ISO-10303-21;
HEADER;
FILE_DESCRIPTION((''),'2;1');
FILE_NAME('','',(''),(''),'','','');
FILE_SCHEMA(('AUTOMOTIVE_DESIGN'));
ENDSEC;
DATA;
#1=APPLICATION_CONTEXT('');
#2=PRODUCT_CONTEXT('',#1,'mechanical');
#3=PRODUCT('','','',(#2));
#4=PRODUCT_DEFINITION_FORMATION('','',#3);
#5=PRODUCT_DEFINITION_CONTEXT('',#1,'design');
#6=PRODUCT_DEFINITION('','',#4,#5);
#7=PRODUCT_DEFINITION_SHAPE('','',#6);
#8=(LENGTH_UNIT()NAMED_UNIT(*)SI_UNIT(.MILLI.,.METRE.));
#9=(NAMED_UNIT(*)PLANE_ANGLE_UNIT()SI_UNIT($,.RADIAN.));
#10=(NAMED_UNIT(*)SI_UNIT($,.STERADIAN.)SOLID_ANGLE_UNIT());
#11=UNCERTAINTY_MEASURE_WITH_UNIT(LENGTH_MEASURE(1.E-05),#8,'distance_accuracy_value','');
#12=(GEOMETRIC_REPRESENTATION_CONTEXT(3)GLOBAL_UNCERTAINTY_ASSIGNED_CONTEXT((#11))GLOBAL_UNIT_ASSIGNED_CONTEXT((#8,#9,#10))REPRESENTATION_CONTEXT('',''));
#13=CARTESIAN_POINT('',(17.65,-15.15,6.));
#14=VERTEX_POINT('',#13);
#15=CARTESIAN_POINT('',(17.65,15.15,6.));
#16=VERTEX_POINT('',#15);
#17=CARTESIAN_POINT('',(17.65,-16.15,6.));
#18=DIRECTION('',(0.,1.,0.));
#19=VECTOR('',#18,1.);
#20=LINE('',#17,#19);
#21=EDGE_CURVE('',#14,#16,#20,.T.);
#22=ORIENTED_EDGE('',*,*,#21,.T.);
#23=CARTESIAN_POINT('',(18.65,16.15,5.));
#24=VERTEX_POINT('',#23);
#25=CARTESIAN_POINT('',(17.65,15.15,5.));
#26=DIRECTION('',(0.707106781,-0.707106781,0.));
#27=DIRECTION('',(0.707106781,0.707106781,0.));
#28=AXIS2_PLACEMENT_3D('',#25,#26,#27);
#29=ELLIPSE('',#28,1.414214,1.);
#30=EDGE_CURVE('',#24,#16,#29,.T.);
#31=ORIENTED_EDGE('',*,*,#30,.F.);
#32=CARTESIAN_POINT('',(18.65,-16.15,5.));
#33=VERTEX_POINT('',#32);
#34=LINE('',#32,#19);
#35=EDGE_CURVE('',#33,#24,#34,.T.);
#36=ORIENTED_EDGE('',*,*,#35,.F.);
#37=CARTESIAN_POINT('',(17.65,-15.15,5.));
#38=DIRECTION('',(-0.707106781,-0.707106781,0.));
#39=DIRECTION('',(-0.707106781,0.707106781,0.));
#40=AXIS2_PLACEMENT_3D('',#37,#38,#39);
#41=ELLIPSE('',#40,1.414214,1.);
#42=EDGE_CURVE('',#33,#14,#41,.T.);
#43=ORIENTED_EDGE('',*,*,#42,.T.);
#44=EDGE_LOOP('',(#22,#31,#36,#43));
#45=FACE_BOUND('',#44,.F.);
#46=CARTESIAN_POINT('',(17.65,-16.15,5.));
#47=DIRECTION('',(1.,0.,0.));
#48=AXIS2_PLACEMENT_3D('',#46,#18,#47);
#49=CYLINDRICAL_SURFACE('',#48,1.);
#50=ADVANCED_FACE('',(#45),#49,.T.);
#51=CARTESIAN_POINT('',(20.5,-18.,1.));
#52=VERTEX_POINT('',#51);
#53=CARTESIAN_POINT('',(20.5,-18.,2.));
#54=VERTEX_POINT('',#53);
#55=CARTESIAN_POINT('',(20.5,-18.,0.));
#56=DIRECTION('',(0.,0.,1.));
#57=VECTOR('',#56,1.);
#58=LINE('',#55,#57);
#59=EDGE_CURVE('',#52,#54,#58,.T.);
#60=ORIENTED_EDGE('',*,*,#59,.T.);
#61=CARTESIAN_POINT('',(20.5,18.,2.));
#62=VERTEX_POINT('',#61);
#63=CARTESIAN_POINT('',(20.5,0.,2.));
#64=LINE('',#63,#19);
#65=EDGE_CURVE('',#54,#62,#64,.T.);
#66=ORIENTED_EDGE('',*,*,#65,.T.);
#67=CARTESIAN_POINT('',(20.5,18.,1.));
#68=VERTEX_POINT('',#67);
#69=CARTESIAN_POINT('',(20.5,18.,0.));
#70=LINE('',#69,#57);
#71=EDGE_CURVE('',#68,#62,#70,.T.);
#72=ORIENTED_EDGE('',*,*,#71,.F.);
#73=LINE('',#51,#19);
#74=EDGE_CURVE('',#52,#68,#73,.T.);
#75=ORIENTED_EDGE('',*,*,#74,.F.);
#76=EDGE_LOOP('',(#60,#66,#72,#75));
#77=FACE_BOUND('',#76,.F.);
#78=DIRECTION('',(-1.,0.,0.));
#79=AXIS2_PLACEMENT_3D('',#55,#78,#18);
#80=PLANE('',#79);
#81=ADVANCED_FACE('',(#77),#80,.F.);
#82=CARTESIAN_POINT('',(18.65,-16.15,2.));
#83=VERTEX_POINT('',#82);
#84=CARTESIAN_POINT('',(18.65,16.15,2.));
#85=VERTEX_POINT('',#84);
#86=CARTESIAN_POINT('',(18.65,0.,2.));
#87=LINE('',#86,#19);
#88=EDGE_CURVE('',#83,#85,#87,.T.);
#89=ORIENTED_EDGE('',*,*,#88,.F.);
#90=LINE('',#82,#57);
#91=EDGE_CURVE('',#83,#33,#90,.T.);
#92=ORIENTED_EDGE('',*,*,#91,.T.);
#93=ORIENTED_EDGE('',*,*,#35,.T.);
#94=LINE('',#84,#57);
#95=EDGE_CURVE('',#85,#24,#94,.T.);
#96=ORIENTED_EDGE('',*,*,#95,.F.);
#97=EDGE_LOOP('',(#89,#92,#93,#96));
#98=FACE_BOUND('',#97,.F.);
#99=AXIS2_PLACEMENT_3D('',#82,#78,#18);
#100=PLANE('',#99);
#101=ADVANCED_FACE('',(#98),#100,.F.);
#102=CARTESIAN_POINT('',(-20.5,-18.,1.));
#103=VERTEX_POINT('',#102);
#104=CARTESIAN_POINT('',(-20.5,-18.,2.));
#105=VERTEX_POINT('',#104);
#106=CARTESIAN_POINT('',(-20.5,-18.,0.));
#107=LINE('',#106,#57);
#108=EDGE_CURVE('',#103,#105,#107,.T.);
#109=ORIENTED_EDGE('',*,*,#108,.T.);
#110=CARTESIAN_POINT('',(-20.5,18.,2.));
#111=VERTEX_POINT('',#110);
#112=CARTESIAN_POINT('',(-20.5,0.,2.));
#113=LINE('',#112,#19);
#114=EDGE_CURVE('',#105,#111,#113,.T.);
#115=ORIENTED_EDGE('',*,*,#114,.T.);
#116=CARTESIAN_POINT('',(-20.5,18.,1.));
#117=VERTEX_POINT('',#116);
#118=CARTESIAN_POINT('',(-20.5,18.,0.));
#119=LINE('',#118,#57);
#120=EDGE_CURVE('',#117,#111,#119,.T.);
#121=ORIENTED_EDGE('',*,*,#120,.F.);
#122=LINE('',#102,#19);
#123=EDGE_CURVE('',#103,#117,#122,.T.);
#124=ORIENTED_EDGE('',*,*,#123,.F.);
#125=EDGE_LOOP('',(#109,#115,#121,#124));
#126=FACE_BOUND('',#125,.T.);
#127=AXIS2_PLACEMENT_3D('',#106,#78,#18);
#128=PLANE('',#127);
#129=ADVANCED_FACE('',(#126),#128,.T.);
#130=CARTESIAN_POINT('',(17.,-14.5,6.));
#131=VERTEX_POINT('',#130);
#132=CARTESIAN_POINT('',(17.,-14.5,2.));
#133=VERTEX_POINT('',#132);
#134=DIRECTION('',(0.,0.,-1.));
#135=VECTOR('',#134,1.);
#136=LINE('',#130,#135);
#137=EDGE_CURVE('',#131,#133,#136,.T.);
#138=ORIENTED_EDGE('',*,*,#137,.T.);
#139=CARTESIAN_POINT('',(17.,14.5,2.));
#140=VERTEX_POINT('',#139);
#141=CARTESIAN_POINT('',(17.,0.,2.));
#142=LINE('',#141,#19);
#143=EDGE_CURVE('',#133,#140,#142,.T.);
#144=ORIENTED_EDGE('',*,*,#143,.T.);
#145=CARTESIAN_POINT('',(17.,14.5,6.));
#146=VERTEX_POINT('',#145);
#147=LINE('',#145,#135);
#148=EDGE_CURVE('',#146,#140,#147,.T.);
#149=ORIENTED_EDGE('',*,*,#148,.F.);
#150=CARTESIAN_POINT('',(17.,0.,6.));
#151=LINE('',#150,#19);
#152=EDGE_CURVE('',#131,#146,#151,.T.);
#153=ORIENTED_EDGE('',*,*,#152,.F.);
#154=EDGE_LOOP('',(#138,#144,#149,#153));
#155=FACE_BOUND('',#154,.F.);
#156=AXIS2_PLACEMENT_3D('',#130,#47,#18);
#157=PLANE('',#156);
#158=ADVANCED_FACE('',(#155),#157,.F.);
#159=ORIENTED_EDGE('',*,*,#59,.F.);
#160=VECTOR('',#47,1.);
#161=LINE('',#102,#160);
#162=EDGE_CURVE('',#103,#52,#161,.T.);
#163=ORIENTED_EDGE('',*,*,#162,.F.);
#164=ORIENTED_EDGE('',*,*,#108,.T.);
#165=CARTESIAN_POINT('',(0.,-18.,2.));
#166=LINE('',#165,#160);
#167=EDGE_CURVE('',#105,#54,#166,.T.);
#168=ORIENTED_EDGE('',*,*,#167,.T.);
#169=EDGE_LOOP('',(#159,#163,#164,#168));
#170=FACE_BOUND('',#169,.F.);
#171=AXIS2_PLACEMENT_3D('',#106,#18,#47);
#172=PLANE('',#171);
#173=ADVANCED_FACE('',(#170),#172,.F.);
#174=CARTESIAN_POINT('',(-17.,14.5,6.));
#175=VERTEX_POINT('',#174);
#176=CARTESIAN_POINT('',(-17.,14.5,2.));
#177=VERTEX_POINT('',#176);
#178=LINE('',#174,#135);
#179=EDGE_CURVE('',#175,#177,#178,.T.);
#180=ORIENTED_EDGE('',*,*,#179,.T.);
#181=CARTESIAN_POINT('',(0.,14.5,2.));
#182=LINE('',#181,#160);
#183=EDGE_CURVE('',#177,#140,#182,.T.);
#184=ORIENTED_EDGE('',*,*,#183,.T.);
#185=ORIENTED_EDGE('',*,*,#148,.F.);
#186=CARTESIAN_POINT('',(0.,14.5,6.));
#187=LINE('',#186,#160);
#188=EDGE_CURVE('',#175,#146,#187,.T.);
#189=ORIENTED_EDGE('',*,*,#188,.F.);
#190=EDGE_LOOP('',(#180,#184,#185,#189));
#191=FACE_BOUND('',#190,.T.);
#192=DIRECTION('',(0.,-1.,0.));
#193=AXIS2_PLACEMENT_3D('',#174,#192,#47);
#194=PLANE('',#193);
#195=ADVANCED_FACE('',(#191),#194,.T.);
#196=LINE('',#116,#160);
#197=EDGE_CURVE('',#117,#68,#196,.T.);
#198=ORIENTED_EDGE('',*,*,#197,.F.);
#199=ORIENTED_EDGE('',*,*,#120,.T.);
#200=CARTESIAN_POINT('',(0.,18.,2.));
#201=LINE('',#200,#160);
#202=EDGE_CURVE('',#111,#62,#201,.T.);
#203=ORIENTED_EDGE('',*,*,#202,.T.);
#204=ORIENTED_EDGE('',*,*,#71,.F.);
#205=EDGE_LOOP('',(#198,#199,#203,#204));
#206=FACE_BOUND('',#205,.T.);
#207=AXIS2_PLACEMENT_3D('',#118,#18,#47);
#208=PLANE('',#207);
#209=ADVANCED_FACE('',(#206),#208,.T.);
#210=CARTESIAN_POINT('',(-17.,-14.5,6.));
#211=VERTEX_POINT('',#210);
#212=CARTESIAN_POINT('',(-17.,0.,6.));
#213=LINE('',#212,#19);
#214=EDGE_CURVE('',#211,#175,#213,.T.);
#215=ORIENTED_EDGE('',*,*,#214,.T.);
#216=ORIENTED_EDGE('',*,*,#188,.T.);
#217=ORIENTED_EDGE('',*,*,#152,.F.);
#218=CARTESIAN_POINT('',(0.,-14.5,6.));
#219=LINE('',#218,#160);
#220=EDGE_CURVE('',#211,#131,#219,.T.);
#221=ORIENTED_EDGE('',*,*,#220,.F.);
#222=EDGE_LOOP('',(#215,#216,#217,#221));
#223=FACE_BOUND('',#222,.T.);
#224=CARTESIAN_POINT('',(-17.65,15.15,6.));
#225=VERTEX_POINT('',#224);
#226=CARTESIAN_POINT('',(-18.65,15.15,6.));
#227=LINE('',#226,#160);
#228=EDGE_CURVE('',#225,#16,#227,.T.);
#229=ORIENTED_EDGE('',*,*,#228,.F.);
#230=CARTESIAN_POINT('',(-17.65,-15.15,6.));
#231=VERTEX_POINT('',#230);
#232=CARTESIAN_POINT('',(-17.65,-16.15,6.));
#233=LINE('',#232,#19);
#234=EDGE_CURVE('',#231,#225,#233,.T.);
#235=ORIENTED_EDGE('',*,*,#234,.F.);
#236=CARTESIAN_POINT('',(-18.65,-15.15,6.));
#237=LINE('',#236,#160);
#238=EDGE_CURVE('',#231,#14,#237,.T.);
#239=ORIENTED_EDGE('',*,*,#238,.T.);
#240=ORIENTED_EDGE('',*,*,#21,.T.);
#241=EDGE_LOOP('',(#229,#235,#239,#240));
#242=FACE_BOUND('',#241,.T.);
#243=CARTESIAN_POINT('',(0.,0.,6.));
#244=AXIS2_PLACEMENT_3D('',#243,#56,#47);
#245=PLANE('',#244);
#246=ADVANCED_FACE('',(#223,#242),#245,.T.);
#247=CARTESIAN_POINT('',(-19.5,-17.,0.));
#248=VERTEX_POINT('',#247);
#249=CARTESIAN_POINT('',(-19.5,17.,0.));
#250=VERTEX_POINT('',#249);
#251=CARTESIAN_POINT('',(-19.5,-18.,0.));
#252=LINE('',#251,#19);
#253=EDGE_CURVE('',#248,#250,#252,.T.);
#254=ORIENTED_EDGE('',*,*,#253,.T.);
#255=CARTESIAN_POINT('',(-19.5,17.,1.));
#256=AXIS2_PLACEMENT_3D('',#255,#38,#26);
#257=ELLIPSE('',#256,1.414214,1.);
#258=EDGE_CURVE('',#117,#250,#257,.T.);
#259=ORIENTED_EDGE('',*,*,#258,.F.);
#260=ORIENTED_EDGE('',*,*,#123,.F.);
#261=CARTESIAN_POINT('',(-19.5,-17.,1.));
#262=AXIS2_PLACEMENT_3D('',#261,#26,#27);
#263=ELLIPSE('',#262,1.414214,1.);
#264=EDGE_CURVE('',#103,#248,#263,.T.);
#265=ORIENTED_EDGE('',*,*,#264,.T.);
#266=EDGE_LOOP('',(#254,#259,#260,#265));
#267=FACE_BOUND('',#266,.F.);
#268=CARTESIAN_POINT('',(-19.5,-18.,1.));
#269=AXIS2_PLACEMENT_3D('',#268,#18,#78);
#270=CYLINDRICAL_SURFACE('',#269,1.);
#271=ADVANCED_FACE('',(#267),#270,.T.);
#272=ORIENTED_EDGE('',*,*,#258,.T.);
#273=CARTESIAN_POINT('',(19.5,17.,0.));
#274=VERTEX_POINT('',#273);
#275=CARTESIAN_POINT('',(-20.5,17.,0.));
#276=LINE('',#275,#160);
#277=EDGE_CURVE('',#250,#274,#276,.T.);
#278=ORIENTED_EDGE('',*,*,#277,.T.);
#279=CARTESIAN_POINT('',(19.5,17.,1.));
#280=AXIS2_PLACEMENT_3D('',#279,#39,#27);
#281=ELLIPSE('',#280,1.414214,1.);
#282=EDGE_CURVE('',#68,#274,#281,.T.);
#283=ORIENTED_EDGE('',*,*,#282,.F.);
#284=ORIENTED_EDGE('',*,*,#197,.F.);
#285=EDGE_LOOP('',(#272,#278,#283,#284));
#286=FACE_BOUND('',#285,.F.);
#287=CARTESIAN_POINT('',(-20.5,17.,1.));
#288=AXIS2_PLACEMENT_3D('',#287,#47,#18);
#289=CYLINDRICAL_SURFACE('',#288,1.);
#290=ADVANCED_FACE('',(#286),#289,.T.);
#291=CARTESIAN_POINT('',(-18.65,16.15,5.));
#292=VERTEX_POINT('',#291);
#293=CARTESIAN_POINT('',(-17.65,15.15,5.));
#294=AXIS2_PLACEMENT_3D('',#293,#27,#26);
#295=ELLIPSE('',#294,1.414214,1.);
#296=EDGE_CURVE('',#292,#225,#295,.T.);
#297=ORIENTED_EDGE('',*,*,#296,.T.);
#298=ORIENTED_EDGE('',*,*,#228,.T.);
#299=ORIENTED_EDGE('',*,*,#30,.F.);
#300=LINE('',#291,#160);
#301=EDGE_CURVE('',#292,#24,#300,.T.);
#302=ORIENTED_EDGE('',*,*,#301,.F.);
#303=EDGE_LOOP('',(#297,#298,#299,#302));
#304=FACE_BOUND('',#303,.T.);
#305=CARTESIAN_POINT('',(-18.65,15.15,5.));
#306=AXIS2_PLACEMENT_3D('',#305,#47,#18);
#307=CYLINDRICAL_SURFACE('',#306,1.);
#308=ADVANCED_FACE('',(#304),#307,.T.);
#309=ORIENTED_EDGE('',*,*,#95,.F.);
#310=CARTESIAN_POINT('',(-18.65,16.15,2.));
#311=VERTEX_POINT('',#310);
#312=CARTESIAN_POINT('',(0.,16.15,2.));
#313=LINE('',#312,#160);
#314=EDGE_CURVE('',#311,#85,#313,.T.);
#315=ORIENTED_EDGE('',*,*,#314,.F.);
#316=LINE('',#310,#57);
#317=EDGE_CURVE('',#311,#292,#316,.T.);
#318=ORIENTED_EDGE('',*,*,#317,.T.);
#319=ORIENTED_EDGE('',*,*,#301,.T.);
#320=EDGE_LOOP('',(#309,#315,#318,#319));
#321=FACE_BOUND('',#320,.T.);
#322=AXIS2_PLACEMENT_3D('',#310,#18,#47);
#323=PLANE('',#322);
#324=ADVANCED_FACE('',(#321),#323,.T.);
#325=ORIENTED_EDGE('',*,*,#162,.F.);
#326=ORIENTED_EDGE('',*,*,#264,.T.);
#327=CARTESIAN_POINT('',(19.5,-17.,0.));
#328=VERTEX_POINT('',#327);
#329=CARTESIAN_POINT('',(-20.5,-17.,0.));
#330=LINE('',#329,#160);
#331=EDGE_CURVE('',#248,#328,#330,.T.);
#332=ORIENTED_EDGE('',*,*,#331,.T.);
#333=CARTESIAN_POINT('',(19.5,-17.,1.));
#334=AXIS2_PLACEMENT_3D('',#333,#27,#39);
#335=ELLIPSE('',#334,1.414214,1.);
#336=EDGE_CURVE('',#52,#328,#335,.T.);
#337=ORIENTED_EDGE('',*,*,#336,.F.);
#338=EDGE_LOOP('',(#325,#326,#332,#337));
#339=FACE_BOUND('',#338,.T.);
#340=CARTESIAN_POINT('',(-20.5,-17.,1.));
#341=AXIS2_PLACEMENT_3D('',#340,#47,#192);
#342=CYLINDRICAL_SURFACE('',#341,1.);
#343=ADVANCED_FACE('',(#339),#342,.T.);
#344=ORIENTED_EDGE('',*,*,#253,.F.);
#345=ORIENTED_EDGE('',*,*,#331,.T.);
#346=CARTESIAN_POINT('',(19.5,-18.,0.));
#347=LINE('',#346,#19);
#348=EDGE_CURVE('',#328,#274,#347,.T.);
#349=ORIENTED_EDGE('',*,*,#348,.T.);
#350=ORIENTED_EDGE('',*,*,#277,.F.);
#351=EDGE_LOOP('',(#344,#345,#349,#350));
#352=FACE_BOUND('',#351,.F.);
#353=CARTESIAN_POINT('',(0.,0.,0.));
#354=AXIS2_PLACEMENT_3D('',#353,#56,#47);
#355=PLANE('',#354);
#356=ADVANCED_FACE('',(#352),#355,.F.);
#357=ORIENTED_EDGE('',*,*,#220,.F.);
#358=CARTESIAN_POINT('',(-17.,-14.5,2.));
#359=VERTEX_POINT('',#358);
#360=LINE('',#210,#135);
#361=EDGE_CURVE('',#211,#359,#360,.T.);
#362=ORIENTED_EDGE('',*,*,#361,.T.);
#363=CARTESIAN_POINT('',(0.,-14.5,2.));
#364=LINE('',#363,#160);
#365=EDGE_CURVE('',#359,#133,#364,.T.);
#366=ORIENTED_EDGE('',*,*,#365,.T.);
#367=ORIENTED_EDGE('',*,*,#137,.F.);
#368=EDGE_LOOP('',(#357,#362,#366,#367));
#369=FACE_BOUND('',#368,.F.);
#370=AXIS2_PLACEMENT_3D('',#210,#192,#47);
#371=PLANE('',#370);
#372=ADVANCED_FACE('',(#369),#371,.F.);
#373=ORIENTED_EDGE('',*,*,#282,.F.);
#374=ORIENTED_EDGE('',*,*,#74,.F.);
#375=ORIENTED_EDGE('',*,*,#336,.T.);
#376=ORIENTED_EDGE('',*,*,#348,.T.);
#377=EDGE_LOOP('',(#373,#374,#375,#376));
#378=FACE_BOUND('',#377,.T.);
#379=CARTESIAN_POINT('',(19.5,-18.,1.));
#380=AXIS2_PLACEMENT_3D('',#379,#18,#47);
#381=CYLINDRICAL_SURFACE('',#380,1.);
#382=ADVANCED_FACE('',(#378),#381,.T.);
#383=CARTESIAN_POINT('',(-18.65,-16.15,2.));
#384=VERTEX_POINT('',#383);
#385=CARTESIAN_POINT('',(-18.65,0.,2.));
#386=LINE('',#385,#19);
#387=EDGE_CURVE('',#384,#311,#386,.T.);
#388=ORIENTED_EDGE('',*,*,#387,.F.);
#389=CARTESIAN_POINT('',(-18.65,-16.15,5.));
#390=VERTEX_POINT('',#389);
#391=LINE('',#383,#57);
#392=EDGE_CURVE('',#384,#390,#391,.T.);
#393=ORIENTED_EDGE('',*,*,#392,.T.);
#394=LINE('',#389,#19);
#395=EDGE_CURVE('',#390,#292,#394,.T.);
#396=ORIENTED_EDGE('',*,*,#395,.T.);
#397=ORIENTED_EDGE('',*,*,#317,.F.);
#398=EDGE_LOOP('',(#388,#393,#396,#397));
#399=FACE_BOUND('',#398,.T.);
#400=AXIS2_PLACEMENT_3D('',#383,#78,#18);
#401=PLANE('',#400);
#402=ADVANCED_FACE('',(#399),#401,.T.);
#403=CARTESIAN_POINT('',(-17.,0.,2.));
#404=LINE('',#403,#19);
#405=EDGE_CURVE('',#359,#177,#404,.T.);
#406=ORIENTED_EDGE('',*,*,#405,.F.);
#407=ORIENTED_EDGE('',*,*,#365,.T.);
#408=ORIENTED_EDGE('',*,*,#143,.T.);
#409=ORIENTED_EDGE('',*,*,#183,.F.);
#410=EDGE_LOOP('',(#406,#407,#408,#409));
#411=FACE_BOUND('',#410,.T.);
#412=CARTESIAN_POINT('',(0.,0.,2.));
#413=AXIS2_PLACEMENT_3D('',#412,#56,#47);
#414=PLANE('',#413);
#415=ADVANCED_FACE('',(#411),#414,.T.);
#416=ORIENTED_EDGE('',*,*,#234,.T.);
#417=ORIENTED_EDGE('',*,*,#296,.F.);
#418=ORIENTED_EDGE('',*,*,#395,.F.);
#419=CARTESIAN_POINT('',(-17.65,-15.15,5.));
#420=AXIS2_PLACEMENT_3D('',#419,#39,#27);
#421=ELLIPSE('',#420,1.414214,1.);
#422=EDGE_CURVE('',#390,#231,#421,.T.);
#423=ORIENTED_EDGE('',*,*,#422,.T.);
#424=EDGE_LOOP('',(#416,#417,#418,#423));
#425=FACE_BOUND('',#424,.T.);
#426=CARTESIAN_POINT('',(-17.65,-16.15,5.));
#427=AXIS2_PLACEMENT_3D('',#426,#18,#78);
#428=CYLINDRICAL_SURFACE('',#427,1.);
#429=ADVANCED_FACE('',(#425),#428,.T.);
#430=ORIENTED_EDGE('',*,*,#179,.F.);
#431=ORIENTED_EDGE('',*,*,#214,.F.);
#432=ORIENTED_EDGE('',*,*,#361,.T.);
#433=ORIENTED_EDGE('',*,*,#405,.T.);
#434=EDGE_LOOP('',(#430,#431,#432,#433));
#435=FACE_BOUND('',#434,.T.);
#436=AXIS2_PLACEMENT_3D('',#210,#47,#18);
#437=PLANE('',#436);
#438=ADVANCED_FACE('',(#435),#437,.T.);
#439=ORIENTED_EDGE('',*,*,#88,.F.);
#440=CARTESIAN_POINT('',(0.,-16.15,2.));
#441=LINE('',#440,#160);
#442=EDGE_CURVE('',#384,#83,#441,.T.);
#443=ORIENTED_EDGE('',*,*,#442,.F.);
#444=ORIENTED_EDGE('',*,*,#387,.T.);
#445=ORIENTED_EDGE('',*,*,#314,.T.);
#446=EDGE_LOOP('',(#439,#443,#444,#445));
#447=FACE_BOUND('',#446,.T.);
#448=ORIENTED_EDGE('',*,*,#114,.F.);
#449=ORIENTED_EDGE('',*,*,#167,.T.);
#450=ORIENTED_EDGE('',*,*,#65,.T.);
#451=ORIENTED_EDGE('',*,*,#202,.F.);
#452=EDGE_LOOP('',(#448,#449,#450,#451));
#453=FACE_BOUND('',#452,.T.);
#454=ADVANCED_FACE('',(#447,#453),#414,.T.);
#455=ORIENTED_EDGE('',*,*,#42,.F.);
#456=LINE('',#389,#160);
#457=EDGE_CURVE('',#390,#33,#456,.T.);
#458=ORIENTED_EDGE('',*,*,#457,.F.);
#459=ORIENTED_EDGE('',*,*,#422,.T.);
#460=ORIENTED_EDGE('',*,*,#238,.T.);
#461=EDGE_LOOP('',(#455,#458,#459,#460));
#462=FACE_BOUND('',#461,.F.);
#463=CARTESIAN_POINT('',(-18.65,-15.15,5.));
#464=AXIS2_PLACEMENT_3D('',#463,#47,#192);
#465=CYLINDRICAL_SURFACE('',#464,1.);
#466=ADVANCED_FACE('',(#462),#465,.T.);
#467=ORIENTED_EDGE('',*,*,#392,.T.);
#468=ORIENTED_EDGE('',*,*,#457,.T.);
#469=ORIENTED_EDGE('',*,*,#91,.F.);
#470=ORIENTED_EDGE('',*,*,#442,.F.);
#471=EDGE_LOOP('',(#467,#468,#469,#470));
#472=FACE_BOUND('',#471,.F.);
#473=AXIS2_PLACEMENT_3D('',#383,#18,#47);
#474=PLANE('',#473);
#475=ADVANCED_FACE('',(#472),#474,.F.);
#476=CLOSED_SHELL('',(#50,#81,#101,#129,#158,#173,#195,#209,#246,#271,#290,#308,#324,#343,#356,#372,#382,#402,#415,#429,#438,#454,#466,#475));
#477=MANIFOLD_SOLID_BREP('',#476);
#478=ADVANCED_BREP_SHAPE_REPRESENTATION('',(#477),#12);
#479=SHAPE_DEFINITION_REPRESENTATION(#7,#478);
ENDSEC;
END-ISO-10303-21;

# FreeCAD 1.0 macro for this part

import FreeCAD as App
import Part
import Sketcher

V = App.Vector


def edges_at(feature, points):
    """Names of the edges that pass closest to the given points."""
    edges = feature.Shape.Edges
    near = lambda p: min(range(len(edges)), key=lambda i: edges[i].distToShape(Part.Vertex(*p))[0])
    return sorted({f"Edge{near(p) + 1}" for p in points})


def add_polygon(sketch, points):
    """Adds a closed chain of lines whose ends are joined by coincident constraints."""
    first, n = sketch.GeometryCount, len(points)
    for a, b in zip(points, points[1:] + points[:1]):
        sketch.addGeometry(Part.LineSegment(App.Vector(*a, 0), App.Vector(*b, 0)), False)
    for i in range(n):
        sketch.addConstraint(Sketcher.Constraint("Coincident", first + i, 2, first + (i + 1) % n, 1))

doc = App.newDocument("Part")
params = doc.addObject("Spreadsheet::Sheet", "Params")
for row, (alias, value) in enumerate([
    ("sketch1_width", "41 mm"),
    ("sketch1_height", "36 mm"),
    ("pad1_length", "2 mm"),
    ("sketch2_width", "37.3 mm"),
    ("sketch2_height", "32.3 mm"),
    ("pad2_length", "4 mm"),
    ("sketch3_width", "34 mm"),
    ("sketch3_height", "29 mm"),
    ("pocket1_length", "4 mm"),
    ("fillet_radius", "1 mm"),
    ("fillet2_radius", "1 mm"),
], start=1):
    params.set(f"A{row}", alias)
    params.set(f"B{row}", "=" + value)
    params.setAlias(f"B{row}", alias)

body = doc.addObject("PartDesign::Body", "Body")

# Sketch on XY plane
sketch1 = body.newObject("Sketcher::SketchObject", "Sketch")
sketch1.AttachmentSupport = (doc.getObject("XY_Plane"), [""])
sketch1.MapMode = "FlatFace"
add_polygon(sketch1, [(-20.5, 18), (-20.5, -18), (20.5, -18), (20.5, 18)])  # lines 0-3
sketch1.addConstraint([
    Sketcher.Constraint("Vertical", 0),
    Sketcher.Constraint("Horizontal", 1),
    Sketcher.Constraint("Vertical", 2),
    Sketcher.Constraint("Horizontal", 3),
    Sketcher.Constraint("Symmetric", 0, 2, 2, 2, -1, 1),
    Sketcher.Constraint("DistanceX", 1, 1, 1, 2, 41.0),
    Sketcher.Constraint("DistanceY", 0, 2, 0, 1, 36.0),
])
sketch1.setExpression("Constraints[9]", "Params.sketch1_width")
sketch1.setExpression("Constraints[10]", "Params.sketch1_height")
pad1 = body.newObject("PartDesign::Pad", "Pad")
pad1.Profile = sketch1
pad1.setExpression("Length", "Params.pad1_length")

# Sketch on XY plane
sketch2 = body.newObject("Sketcher::SketchObject", "Sketch001")
sketch2.AttachmentSupport = (doc.getObject("XY_Plane"), [""])
sketch2.MapMode = "FlatFace"
sketch2.AttachmentOffset = App.Placement(V(0, 0, 2), App.Rotation())
add_polygon(sketch2, [(-18.65, 16.15), (-18.65, -16.15), (18.65, -16.15), (18.65, 16.15)])  # lines 0-3
sketch2.addConstraint([
    Sketcher.Constraint("Vertical", 0),
    Sketcher.Constraint("Horizontal", 1),
    Sketcher.Constraint("Vertical", 2),
    Sketcher.Constraint("Horizontal", 3),
    Sketcher.Constraint("Symmetric", 0, 2, 2, 2, -1, 1),
    Sketcher.Constraint("DistanceX", 1, 1, 1, 2, 37.3),
    Sketcher.Constraint("DistanceY", 0, 2, 0, 1, 32.3),
])
sketch2.setExpression("Constraints[9]", "Params.sketch2_width")
sketch2.setExpression("Constraints[10]", "Params.sketch2_height")
pad2 = body.newObject("PartDesign::Pad", "Pad001")
pad2.Profile = sketch2
pad2.setExpression("Length", "Params.pad2_length")

# Sketch on XY plane
sketch3 = body.newObject("Sketcher::SketchObject", "Sketch002")
sketch3.AttachmentSupport = (doc.getObject("XY_Plane"), [""])
sketch3.MapMode = "FlatFace"
sketch3.AttachmentOffset = App.Placement(V(0, 0, 6), App.Rotation())
add_polygon(sketch3, [(-17, 14.5), (-17, -14.5), (17, -14.5), (17, 14.5)])  # lines 0-3
sketch3.addConstraint([
    Sketcher.Constraint("Vertical", 0),
    Sketcher.Constraint("Horizontal", 1),
    Sketcher.Constraint("Vertical", 2),
    Sketcher.Constraint("Horizontal", 3),
    Sketcher.Constraint("Symmetric", 0, 2, 2, 2, -1, 1),
    Sketcher.Constraint("DistanceX", 1, 1, 1, 2, 34.0),
    Sketcher.Constraint("DistanceY", 0, 2, 0, 1, 29.0),
])
sketch3.setExpression("Constraints[9]", "Params.sketch3_width")
sketch3.setExpression("Constraints[10]", "Params.sketch3_height")
pocket1 = body.newObject("PartDesign::Pocket", "Pocket")
pocket1.Profile = sketch3
pocket1.setExpression("Length", "Params.pocket1_length")
doc.recompute()

fillet = body.newObject("PartDesign::Fillet", "Fillet")
fillet.Base = (pocket1, edges_at(pocket1, [
    (0, 16.15, 6),
    (18.65, 0, 6),
    (0, -16.15, 6),
    (-18.65, 0, 6),
]))
fillet.setExpression("Radius", "Params.fillet_radius")
doc.recompute()

fillet2 = body.newObject("PartDesign::Fillet", "Fillet001")
fillet2.Base = (fillet, edges_at(fillet, [
    (0, 18, 0),
    (20.5, 0, 0),
    (0, -18, 0),
    (-20.5, 0, 0),
]))
fillet2.setExpression("Radius", "Params.fillet2_radius")

doc.recompute()
